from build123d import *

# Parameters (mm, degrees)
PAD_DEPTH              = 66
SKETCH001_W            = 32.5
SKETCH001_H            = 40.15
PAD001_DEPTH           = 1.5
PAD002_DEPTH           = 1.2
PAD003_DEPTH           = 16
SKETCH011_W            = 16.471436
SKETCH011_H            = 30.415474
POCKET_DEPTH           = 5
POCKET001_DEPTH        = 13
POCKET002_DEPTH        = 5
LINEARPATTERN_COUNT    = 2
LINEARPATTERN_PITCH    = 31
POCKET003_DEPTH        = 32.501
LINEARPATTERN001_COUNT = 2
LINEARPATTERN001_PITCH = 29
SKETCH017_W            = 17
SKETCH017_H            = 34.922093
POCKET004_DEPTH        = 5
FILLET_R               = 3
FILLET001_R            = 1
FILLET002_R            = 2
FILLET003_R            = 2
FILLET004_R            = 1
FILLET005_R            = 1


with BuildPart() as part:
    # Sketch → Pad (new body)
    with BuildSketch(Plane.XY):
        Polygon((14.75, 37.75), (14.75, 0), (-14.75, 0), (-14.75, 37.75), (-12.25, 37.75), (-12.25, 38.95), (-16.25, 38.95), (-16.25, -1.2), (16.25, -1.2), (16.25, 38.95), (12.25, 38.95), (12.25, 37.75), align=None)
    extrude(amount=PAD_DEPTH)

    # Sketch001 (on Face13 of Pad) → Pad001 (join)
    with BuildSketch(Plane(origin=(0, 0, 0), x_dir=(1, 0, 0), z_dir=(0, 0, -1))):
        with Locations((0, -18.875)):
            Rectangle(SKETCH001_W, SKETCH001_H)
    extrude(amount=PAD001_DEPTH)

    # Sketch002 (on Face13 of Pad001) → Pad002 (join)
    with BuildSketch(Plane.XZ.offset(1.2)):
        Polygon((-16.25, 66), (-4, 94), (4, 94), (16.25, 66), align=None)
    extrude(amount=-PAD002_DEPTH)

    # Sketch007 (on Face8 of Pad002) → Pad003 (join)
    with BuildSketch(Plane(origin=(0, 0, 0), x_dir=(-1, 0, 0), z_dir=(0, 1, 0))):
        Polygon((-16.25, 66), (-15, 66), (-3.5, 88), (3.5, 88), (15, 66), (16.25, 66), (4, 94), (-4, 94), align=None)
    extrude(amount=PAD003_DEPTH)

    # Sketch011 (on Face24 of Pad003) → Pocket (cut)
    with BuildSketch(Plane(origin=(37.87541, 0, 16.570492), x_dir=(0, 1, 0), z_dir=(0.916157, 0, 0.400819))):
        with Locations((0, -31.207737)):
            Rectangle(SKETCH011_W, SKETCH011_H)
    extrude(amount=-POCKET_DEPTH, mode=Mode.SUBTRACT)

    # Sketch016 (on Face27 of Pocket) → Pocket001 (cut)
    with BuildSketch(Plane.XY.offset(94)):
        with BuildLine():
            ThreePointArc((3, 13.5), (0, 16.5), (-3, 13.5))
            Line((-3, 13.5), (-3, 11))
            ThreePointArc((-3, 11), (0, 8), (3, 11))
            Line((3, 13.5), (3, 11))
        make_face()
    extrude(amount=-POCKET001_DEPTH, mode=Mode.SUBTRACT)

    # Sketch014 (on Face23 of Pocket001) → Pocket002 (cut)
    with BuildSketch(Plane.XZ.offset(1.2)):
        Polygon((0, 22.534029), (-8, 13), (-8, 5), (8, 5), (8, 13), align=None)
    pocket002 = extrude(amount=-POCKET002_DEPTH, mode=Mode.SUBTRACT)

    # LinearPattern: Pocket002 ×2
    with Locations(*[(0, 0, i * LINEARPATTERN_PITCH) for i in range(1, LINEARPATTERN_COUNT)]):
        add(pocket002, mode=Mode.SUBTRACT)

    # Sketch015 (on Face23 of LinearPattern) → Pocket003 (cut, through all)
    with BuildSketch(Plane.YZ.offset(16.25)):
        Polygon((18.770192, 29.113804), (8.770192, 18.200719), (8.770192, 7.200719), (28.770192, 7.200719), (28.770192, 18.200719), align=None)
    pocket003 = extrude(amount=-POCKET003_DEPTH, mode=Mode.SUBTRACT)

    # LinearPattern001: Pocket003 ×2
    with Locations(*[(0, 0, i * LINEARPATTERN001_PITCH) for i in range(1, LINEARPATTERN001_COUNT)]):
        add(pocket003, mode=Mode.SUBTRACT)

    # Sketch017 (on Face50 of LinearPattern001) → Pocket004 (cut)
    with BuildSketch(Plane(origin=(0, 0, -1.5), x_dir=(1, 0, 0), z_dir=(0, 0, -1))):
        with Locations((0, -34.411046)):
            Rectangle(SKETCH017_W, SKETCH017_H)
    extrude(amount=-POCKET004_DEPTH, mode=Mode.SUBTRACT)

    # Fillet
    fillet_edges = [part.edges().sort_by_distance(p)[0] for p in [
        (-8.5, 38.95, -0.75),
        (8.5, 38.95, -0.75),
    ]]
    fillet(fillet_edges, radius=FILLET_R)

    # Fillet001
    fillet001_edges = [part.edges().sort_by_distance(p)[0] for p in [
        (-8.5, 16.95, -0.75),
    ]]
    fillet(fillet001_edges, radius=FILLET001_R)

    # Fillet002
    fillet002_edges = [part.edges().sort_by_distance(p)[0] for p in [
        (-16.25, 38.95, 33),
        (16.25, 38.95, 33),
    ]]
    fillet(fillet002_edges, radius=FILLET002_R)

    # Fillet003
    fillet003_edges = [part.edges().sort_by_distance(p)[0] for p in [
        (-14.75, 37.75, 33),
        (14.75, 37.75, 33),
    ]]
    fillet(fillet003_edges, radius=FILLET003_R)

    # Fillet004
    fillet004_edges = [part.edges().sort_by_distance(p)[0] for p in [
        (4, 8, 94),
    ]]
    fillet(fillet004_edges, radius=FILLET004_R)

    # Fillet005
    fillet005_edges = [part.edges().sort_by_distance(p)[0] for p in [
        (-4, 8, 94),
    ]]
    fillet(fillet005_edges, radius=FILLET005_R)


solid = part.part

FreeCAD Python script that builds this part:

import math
import FreeCAD as App
import Part
import Sketcher

V = App.Vector
Q = App.Units.Quantity


def edges_at(feature, points):
    """Names of the edges that pass closest to the given points."""
    edges = feature.Shape.Edges
    near = lambda p: min(range(len(edges)), key=lambda i: edges[i].distToShape(Part.Vertex(*p))[0])
    return sorted({f"Edge{near(p) + 1}" for p in points})


def add_polygon(sketch, points):
    """Adds a closed chain of lines whose ends are joined by coincident constraints."""
    first, n = sketch.GeometryCount, len(points)
    for a, b in zip(points, points[1:] + points[:1]):
        sketch.addGeometry(Part.LineSegment(App.Vector(*a, 0), App.Vector(*b, 0)), False)
    for i in range(n):
        sketch.addConstraint(Sketcher.Constraint("Coincident", first + i, 2, first + (i + 1) % n, 1))

doc = App.newDocument("Part")
params = doc.addObject("Spreadsheet::Sheet", "Params")
for row, (alias, value) in enumerate([
    ("sketch1_width", "4 mm"),
    ("sketch1_width2", "29.5 mm"),
    ("sketch1_width3", "2.5 mm"),
    ("sketch1_height", "1.2 mm"),
    ("sketch1_height2", "37.75 mm"),
    ("pad1_length", "66 mm"),
    ("sketch2_width", "32.5 mm"),
    ("sketch2_height", "40.15 mm"),
    ("pad2_length", "1.5 mm"),
    ("sketch3_width", "8 mm"),
    ("sketch3_width2", "32.5 mm"),
    ("pad3_length", "1.2 mm"),
    ("sketch4_width", "7 mm"),
    ("sketch4_width2", "8 mm"),
    ("sketch4_width3", "1.25 mm"),
    ("pad4_length", "16 mm"),
    ("pocket1_length", "5 mm"),
    ("sketch6_radius", "3 mm"),
    ("sketch6_height", "2.5 mm"),
    ("pocket2_length", "13 mm"),
    ("sketch7_width", "16 mm"),
    ("sketch7_height", "8 mm"),
    ("pocket3_length", "5 mm"),
    ("linearpattern_pitch", "31 mm"),
    ("sketch8_width", "20 mm"),
    ("sketch8_height", "11 mm"),
    ("linearpattern2_pitch", "29 mm"),
    ("sketch9_width", "17 mm"),
    ("pocket5_length", "5 mm"),
    ("fillet_radius", "3 mm"),
    ("fillet2_radius", "1 mm"),
    ("fillet3_radius", "2 mm"),
    ("fillet4_radius", "2 mm"),
    ("fillet5_radius", "1 mm"),
    ("fillet6_radius", "1 mm"),
], start=1):
    params.set(f"A{row}", alias)
    params.set(f"B{row}", "=" + value)
    params.setAlias(f"B{row}", alias)

body = doc.addObject("PartDesign::Body", "Body")

# Sketch on XY plane
sketch1 = body.newObject("Sketcher::SketchObject", "Sketch")
sketch1.AttachmentSupport = (doc.getObject("XY_Plane"), [""])
sketch1.MapMode = "FlatFace"
add_polygon(sketch1, [(14.8, 37.8), (14.8, 0), (-14.8, 0), (-14.8, 37.8), (-12.2, 37.8), (-12.2, 39), (-16.2, 39), (-16.2, -1.2), (16.2, -1.2), (16.2, 39), (12.2, 39), (12.2, 37.8)])  # lines 0-11
sketch1.addConstraint([
    Sketcher.Constraint("Vertical", 0),
    Sketcher.Constraint("Horizontal", 1),
    Sketcher.Constraint("Vertical", 2),
    Sketcher.Constraint("Horizontal", 3),
    Sketcher.Constraint("Vertical", 4),
    Sketcher.Constraint("Horizontal", 5),
    Sketcher.Constraint("Vertical", 6),
    Sketcher.Constraint("Horizontal", 7),
    Sketcher.Constraint("Vertical", 8),
    Sketcher.Constraint("Horizontal", 9),
    Sketcher.Constraint("Vertical", 10),
    Sketcher.Constraint("Horizontal", 11),
    Sketcher.Constraint("Symmetric", 0, 2, 1, 2, -1, 1),
    Sketcher.Constraint("Symmetric", 5, 2, 8, 2, -2),
    Sketcher.Constraint("Symmetric", 3, 2, 10, 2, -2),
    Sketcher.Constraint("DistanceX", 5, 2, 5, 1, 4.0),
    Sketcher.Constraint("DistanceX", 1, 2, 1, 1, 29.5),
    Sketcher.Constraint("DistanceX", 3, 1, 3, 2, 2.5),
    Sketcher.Constraint("DistanceY", 4, 1, 4, 2, 1.2),
    Sketcher.Constraint("DistanceY", 0, 2, 0, 1, 37.75),
    Sketcher.Constraint("DistanceY", 6, 2, 6, 1, 40.15),
])
sketch1.setExpression("Constraints[27]", "Params.sketch1_width")
sketch1.setExpression("Constraints[28]", "Params.sketch1_width2")
sketch1.setExpression("Constraints[29]", "Params.sketch1_width3")
sketch1.setExpression("Constraints[30]", "Params.sketch1_height")
sketch1.setExpression("Constraints[31]", "Params.sketch1_height2")
pad1 = body.newObject("PartDesign::Pad", "Pad")
pad1.Profile = sketch1
pad1.setExpression("Length", "Params.pad1_length")

# Sketch on XY plane
sketch2 = body.newObject("Sketcher::SketchObject", "Sketch001")
sketch2.AttachmentSupport = (doc.getObject("XY_Plane"), [""])
sketch2.MapMode = "FlatFace"
add_polygon(sketch2, [(-16, -1), (-16, 39), (16, 39), (16, -1)])  # lines 0-3
sketch2.addConstraint([
    Sketcher.Constraint("Vertical", 0),
    Sketcher.Constraint("Horizontal", 1),
    Sketcher.Constraint("Vertical", 2),
    Sketcher.Constraint("Horizontal", 3),
    Sketcher.Constraint("DistanceX", 1, 1, 1, 2, 32.5),
    Sketcher.Constraint("DistanceY", 0, 1, 0, 2, 40.15),
    Sketcher.Constraint("DistanceY", 2, 2, -1, 1, 1.2),
    Sketcher.Constraint("DistanceX", 0, 2, -1, 1, 16.25),
])
sketch2.setExpression("Constraints[8]", "Params.sketch2_width")
sketch2.setExpression("Constraints[9]", "Params.sketch2_height")
pad2 = body.newObject("PartDesign::Pad", "Pad001")
pad2.Profile = sketch2
pad2.setExpression("Length", "Params.pad2_length")
pad2.Reversed = True

# Sketch on XZ plane
sketch3 = body.newObject("Sketcher::SketchObject", "Sketch002")
sketch3.AttachmentSupport = (doc.getObject("XZ_Plane"), [""])
sketch3.MapMode = "FlatFace"
sketch3.AttachmentOffset = App.Placement(V(0, 0, 1.2), App.Rotation())
add_polygon(sketch3, [(-4, 94), (-16, 66), (16, 66), (4, 94)])  # lines 0-3
sketch3.addConstraint([
    Sketcher.Constraint("Horizontal", 1),
    Sketcher.Constraint("Horizontal", 3),
    Sketcher.Constraint("Equal", 0, 2),
    Sketcher.Constraint("DistanceX", 3, 2, 3, 1, 8.0),
    Sketcher.Constraint("DistanceX", 1, 1, 1, 2, 32.5),
    Sketcher.Constraint("DistanceY", -1, 1, 0, 2, 66.0),
    Sketcher.Constraint("DistanceX", -1, 1, 2, 2, 4.0),
    Sketcher.Constraint("DistanceY", -1, 1, 2, 2, 94.0),
])
sketch3.setExpression("Constraints[7]", "Params.sketch3_width")
sketch3.setExpression("Constraints[8]", "Params.sketch3_width2")
pad3 = body.newObject("PartDesign::Pad", "Pad002")
pad3.Profile = sketch3
pad3.setExpression("Length", "Params.pad3_length")
pad3.Reversed = True

# Sketch on XZ plane
sketch4 = body.newObject("Sketcher::SketchObject", "Sketch003")
sketch4.AttachmentSupport = (doc.getObject("XZ_Plane"), [""])
sketch4.MapMode = "FlatFace"
add_polygon(sketch4, [(16.2, 66), (15, 66), (3.5, 88), (-3.5, 88), (-15, 66), (-16.2, 66), (-4, 94), (4, 94)])  # lines 0-7
sketch4.addConstraint([
    Sketcher.Constraint("Horizontal", 0),
    Sketcher.Constraint("Horizontal", 2),
    Sketcher.Constraint("Horizontal", 4),
    Sketcher.Constraint("Horizontal", 6),
    Sketcher.Constraint("Symmetric", 0, 2, 3, 2, -2),
    Sketcher.Constraint("Equal", 0, 4),
    Sketcher.Constraint("Equal", 1, 3),
    Sketcher.Constraint("Equal", 5, 7),
    Sketcher.Constraint("DistanceX", 2, 2, 2, 1, 7.0),
    Sketcher.Constraint("DistanceX", 6, 1, 6, 2, 8.0),
    Sketcher.Constraint("DistanceX", -1, 1, 0, 2, 15.0),
    Sketcher.Constraint("DistanceY", -1, 1, 0, 2, 66.0),
    Sketcher.Constraint("DistanceY", -1, 1, 1, 2, 88.0),
    Sketcher.Constraint("DistanceY", -1, 1, 5, 2, 94.0),
    Sketcher.Constraint("DistanceX", 0, 2, 0, 1, 1.25),
])
sketch4.setExpression("Constraints[16]", "Params.sketch4_width")
sketch4.setExpression("Constraints[17]", "Params.sketch4_width2")
sketch4.setExpression("Constraints[22]", "Params.sketch4_width3")
pad4 = body.newObject("PartDesign::Pad", "Pad003")
pad4.Profile = sketch4
pad4.setExpression("Length", "Params.pad4_length")
pad4.Reversed = True

# Sketch on an angled plane
sketch5 = body.newObject("Sketcher::SketchObject", "Sketch004")
sketch5.Placement = App.Placement(V(37.87541, 0, 16.570492), App.Rotation(V(0, 1, 0), V(-0.400819096, 0, 0.91615722), V(0.91615722, 0, 0.400819096), "ZXY"))
add_polygon(sketch5, [(-8, -16), (-8, -46), (8, -46), (8, -16)])  # lines 0-3
sketch5.addConstraint([
    Sketcher.Constraint("Vertical", 0),
    Sketcher.Constraint("Horizontal", 1),
    Sketcher.Constraint("Vertical", 2),
    Sketcher.Constraint("Horizontal", 3),
    Sketcher.Constraint("DistanceY", 2, 2, -1, 1, 16.0),
    Sketcher.Constraint("DistanceX", 1, 1, 1, 2, 16.471436),
    Sketcher.Constraint("DistanceY", 0, 2, 0, 1, 30.415474),
    Sketcher.Constraint("DistanceX", 0, 2, -1, 1, 8.235718),
])
pocket1 = body.newObject("PartDesign::Pocket", "Pocket")
pocket1.Profile = sketch5
pocket1.setExpression("Length", "Params.pocket1_length")

# Sketch on XY plane
sketch6 = body.newObject("Sketcher::SketchObject", "Sketch005")
sketch6.AttachmentSupport = (doc.getObject("XY_Plane"), [""])
sketch6.MapMode = "FlatFace"
sketch6.AttachmentOffset = App.Placement(V(0, 0, 94), App.Rotation())
sketch6.addGeometry([
    Part.ArcOfCircle(Part.Circle(V(0, 13.5, 0), V(0, 0, 1), 3), math.radians(0), math.radians(180)),
    Part.LineSegment(V(-3, 13.5, 0), V(-3, 11, 0)),
    Part.ArcOfCircle(Part.Circle(V(0, 11, 0), V(0, 0, 1), 3), math.radians(180), math.radians(360)),
    Part.LineSegment(V(3, 11, 0), V(3, 13.5, 0)),
], False)
sketch6.addConstraint([
    Sketcher.Constraint("Tangent", 0, 2, 1, 1),
    Sketcher.Constraint("Tangent", 1, 2, 2, 1),
    Sketcher.Constraint("Tangent", 2, 2, 3, 1),
    Sketcher.Constraint("Tangent", 3, 2, 0, 1),
    Sketcher.Constraint("Vertical", 1),
    Sketcher.Constraint("Vertical", 3),
    Sketcher.Constraint("PointOnObject", 0, 3, -2),
    Sketcher.Constraint("Radius", 0, 3.0),
    Sketcher.Constraint("DistanceY", 1, 2, 1, 1, 2.5),
    Sketcher.Constraint("DistanceY", -1, 1, 2, 3, 11.0),
])
sketch6.setExpression("Constraints[7]", "Params.sketch6_radius")
sketch6.setExpression("Constraints[8]", "Params.sketch6_height")
pocket2 = body.newObject("PartDesign::Pocket", "Pocket001")
pocket2.Profile = sketch6
pocket2.setExpression("Length", "Params.pocket2_length")

# Sketch on XZ plane
sketch7 = body.newObject("Sketcher::SketchObject", "Sketch006")
sketch7.AttachmentSupport = (doc.getObject("XZ_Plane"), [""])
sketch7.MapMode = "FlatFace"
sketch7.AttachmentOffset = App.Placement(V(0, 0, 1.2), App.Rotation())
add_polygon(sketch7, [(0, 23), (-8, 13), (-8, 5), (8, 5), (8, 13)])  # lines 0-4
sketch7.addConstraint([
    Sketcher.Constraint("Vertical", 1),
    Sketcher.Constraint("Horizontal", 2),
    Sketcher.Constraint("Vertical", 3),
    Sketcher.Constraint("Symmetric", 0, 2, 3, 2, -2),
    Sketcher.Constraint("PointOnObject", 4, 2, -2),
    Sketcher.Constraint("DistanceX", 2, 1, 2, 2, 16.0),
    Sketcher.Constraint("DistanceY", 1, 2, 1, 1, 8.0),
    Sketcher.Constraint("Angle", 0, Q("-129.999999 deg")),
    Sketcher.Constraint("DistanceY", -1, 1, 0, 2, 13.0),
])
sketch7.setExpression("Constraints[10]", "Params.sketch7_width")
sketch7.setExpression("Constraints[11]", "Params.sketch7_height")
pocket3 = body.newObject("PartDesign::Pocket", "Pocket002")
pocket3.Profile = sketch7
pocket3.setExpression("Length", "Params.pocket3_length")
doc.recompute()

linearpattern = body.newObject("PartDesign::LinearPattern", "LinearPattern")
linearpattern.Originals = [pocket3]
linearpattern.Direction = (doc.getObject("Z_Axis"), [""])
linearpattern.Mode = "offset"
linearpattern.setExpression("Offset", "Params.linearpattern_pitch")
linearpattern.Occurrences = 2
body.Tip = linearpattern

# Sketch on YZ plane
sketch8 = body.newObject("Sketcher::SketchObject", "Sketch007")
sketch8.AttachmentSupport = (doc.getObject("YZ_Plane"), [""])
sketch8.MapMode = "FlatFace"
sketch8.AttachmentOffset = App.Placement(V(0, 0, 16.25), App.Rotation())
add_polygon(sketch8, [(19, 29), (9, 18), (9, 7), (29, 7), (29, 18)])  # lines 0-4
sketch8.addConstraint([
    Sketcher.Constraint("Vertical", 1),
    Sketcher.Constraint("Horizontal", 2),
    Sketcher.Constraint("Vertical", 3),
    Sketcher.Constraint("Horizontal", 0, 2, 3, 2),
    Sketcher.Constraint("Equal", 0, 4),
    Sketcher.Constraint("DistanceX", 2, 1, 2, 2, 20.0),
    Sketcher.Constraint("DistanceY", 1, 2, 1, 1, 11.0),
    Sketcher.Constraint("Angle", 0, Q("-132.5 deg")),
    Sketcher.Constraint("DistanceY", -1, 1, 0, 2, 18.200719),
    Sketcher.Constraint("DistanceX", -1, 1, 0, 2, 8.770192),
])
sketch8.setExpression("Constraints[10]", "Params.sketch8_width")
sketch8.setExpression("Constraints[11]", "Params.sketch8_height")
pocket4 = body.newObject("PartDesign::Pocket", "Pocket003")
pocket4.Profile = sketch8
pocket4.Type = "ThroughAll"
doc.recompute()

linearpattern2 = body.newObject("PartDesign::LinearPattern", "LinearPattern001")
linearpattern2.Originals = [pocket4]
linearpattern2.Direction = (doc.getObject("Z_Axis"), [""])
linearpattern2.Mode = "offset"
linearpattern2.setExpression("Offset", "Params.linearpattern2_pitch")
linearpattern2.Occurrences = 2
body.Tip = linearpattern2

# Sketch on XY plane
sketch9 = body.newObject("Sketcher::SketchObject", "Sketch008")
sketch9.AttachmentSupport = (doc.getObject("XY_Plane"), [""])
sketch9.MapMode = "FlatFace"
sketch9.AttachmentOffset = App.Placement(V(0, 0, -1.5), App.Rotation())
add_polygon(sketch9, [(-8, 17), (-8, 52), (8, 52), (8, 17)])  # lines 0-3
sketch9.addConstraint([
    Sketcher.Constraint("Vertical", 0),
    Sketcher.Constraint("Horizontal", 1),
    Sketcher.Constraint("Vertical", 2),
    Sketcher.Constraint("Horizontal", 3),
    Sketcher.Constraint("DistanceX", 1, 1, 1, 2, 17.0),
    Sketcher.Constraint("DistanceX", 0, 2, -1, 1, 8.5),
    Sketcher.Constraint("DistanceY", -1, 1, 2, 2, 16.95),
    Sketcher.Constraint("DistanceY", 0, 1, 0, 2, 34.922093),
])
sketch9.setExpression("Constraints[8]", "Params.sketch9_width")
pocket5 = body.newObject("PartDesign::Pocket", "Pocket004")
pocket5.Profile = sketch9
pocket5.setExpression("Length", "Params.pocket5_length")
pocket5.Reversed = True
doc.recompute()

fillet = body.newObject("PartDesign::Fillet", "Fillet")
fillet.Base = (pocket5, edges_at(pocket5, [(-8.5, 38.95, -0.75), (8.5, 38.95, -0.75)]))
fillet.setExpression("Radius", "Params.fillet_radius")
doc.recompute()

fillet2 = body.newObject("PartDesign::Fillet", "Fillet001")
fillet2.Base = (fillet, edges_at(fillet, [(-8.5, 16.95, -0.75)]))
fillet2.setExpression("Radius", "Params.fillet2_radius")
doc.recompute()

fillet3 = body.newObject("PartDesign::Fillet", "Fillet002")
fillet3.Base = (fillet2, edges_at(fillet2, [(-16.25, 38.95, 32.25), (16.25, 38.95, 32.25)]))
fillet3.setExpression("Radius", "Params.fillet3_radius")
doc.recompute()

fillet4 = body.newObject("PartDesign::Fillet", "Fillet003")
fillet4.Base = (fillet3, edges_at(fillet3, [(-14.75, 37.75, 33), (14.75, 37.75, 33)]))
fillet4.setExpression("Radius", "Params.fillet4_radius")
doc.recompute()

fillet5 = body.newObject("PartDesign::Fillet", "Fillet004")
fillet5.Base = (fillet4, edges_at(fillet4, [(4, 7.4, 94)]))
fillet5.setExpression("Radius", "Params.fillet5_radius")
doc.recompute()

fillet6 = body.newObject("PartDesign::Fillet", "Fillet005")
fillet6.Base = (fillet5, edges_at(fillet5, [(-4, 7.4, 94)]))
fillet6.setExpression("Radius", "Params.fillet6_radius")

doc.recompute()
